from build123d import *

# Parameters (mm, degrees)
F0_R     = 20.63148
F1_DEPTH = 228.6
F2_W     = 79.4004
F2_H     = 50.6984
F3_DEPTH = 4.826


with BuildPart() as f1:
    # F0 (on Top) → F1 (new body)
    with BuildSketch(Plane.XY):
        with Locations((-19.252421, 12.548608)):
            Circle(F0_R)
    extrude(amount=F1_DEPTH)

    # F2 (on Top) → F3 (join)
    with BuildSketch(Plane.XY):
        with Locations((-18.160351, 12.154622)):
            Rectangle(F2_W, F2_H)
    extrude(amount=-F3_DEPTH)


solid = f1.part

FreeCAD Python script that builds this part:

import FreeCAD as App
import Part
import Sketcher
Q = App.Units.Quantity

doc = App.newDocument("Part")
params = doc.addObject("Spreadsheet::Sheet", "Params")
for row, (alias, value) in enumerate([
    ("pad1_length", "9 in"),
    ("sketch2_width", "3.126 in"),
    ("sketch2_height", "1.996 in"),
    ("pad2_length", "0.19 in"),
], start=1):
    params.set(f"A{row}", alias)
    params.set(f"B{row}", "=" + value)
    params.setAlias(f"B{row}", alias)

body = doc.addObject("PartDesign::Body", "Body")

sketch1 = body.newObject("Sketcher::SketchObject", "Sketch")
sketch1.AttachmentSupport = (doc.getObject("XY_Plane"), [""])
sketch1.MapMode = "FlatFace"
sketch1.addGeometry(Part.Circle(App.Vector(-19, 13, 0), App.Vector(0, 0, 1), 21), False)
sketch1.addConstraint(Sketcher.Constraint("Diameter", 0, Q("41.26296 mm")))
sketch1.addConstraint(Sketcher.Constraint("DistanceX", 0, 3, -1, 1, Q("19.252421 mm")))
sketch1.addConstraint(Sketcher.Constraint("DistanceY", -1, 1, 0, 3, Q("12.548608 mm")))
pad1 = body.newObject("PartDesign::Pad", "Pad")
pad1.Profile = sketch1
pad1.setExpression("Length", "Params.pad1_length")

sketch2 = body.newObject("Sketcher::SketchObject", "Sketch001")
sketch2.AttachmentSupport = (doc.getObject("XY_Plane"), [""])
sketch2.MapMode = "FlatFace"
sketch2.addGeometry(Part.LineSegment(App.Vector(-58, 38, 0), App.Vector(-58, -13, 0)), False)
sketch2.addGeometry(Part.LineSegment(App.Vector(-58, -13, 0), App.Vector(22, -13, 0)), False)
sketch2.addGeometry(Part.LineSegment(App.Vector(22, -13, 0), App.Vector(22, 38, 0)), False)
sketch2.addGeometry(Part.LineSegment(App.Vector(22, 38, 0), App.Vector(-58, 38, 0)), False)
sketch2.addConstraint(Sketcher.Constraint("Coincident", 0, 2, 1, 1))
sketch2.addConstraint(Sketcher.Constraint("Coincident", 1, 2, 2, 1))
sketch2.addConstraint(Sketcher.Constraint("Coincident", 2, 2, 3, 1))
sketch2.addConstraint(Sketcher.Constraint("Coincident", 3, 2, 0, 1))
sketch2.addConstraint(Sketcher.Constraint("Vertical", 0))
sketch2.addConstraint(Sketcher.Constraint("Horizontal", 1))
sketch2.addConstraint(Sketcher.Constraint("Vertical", 2))
sketch2.addConstraint(Sketcher.Constraint("Horizontal", 3))
sketch2.addConstraint(Sketcher.Constraint("DistanceX", 1, 1, 1, 2, Q("3.126 in")))
sketch2.addConstraint(Sketcher.Constraint("DistanceY", 0, 2, 0, 1, Q("1.996 in")))
sketch2.addConstraint(Sketcher.Constraint("DistanceX", 0, 2, -1, 1, Q("57.860551 mm")))
sketch2.addConstraint(Sketcher.Constraint("DistanceY", 0, 2, -1, 1, Q("13.194578 mm")))
sketch2.setExpression("Constraints[8]", "Params.sketch2_width")
sketch2.setExpression("Constraints[9]", "Params.sketch2_height")
pad2 = body.newObject("PartDesign::Pad", "Pad001")
pad2.Profile = sketch2
pad2.setExpression("Length", "Params.pad2_length")
pad2.Reversed = True

doc.recompute()
